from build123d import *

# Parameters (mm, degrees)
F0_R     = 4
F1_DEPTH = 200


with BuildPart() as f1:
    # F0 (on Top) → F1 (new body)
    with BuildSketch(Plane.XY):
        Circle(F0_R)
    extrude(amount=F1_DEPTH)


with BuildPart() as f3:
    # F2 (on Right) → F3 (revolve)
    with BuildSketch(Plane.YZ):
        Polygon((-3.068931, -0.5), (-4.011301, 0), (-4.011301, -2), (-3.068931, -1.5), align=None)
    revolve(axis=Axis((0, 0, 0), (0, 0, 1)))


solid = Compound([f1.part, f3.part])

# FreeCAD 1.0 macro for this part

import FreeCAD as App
import Part
import Sketcher

V = App.Vector


def add_polygon(sketch, points):
    """Adds a closed chain of lines whose ends are joined by coincident constraints."""
    first, n = sketch.GeometryCount, len(points)
    for a, b in zip(points, points[1:] + points[:1]):
        sketch.addGeometry(Part.LineSegment(App.Vector(*a, 0), App.Vector(*b, 0)), False)
    for i in range(n):
        sketch.addConstraint(Sketcher.Constraint("Coincident", first + i, 2, first + (i + 1) % n, 1))

doc = App.newDocument("Part")
body = doc.addObject("PartDesign::Body", "Body")

# Sketch on XY plane
sketch1 = body.newObject("Sketcher::SketchObject", "Sketch")
sketch1.AttachmentSupport = (doc.getObject("XY_Plane"), [""])
sketch1.MapMode = "FlatFace"
sketch1.addGeometry(Part.Circle(V(0, 0, 0), V(0, 0, 1), 4), False)
sketch1.addConstraint(Sketcher.Constraint("Coincident", 0, 3, -1, 1))
sketch1.addConstraint(Sketcher.Constraint("Diameter", 0, 8.0))
pad1 = body.newObject("PartDesign::Pad", "Pad")
pad1.Profile = sketch1
pad1.Length = 200
body2 = doc.addObject("PartDesign::Body", "Body001")

# Sketch on YZ plane
sketch2 = body2.newObject("Sketcher::SketchObject", "Sketch001")
sketch2.AttachmentSupport = (doc.getObject("YZ_Plane001"), [""])
sketch2.MapMode = "FlatFace"
add_polygon(sketch2, [(-3.1, -0.5), (-4, 0), (-4, -2), (-3.1, -1.5)])  # lines 0-3
sketch2.addConstraint(Sketcher.Constraint("Vertical", 1))
sketch2.addConstraint(Sketcher.Constraint("Vertical", 3))
sketch2.addConstraint(Sketcher.Constraint("PointOnObject", 0, 2, -1))
sketch2.addConstraint(Sketcher.Constraint("Equal", 0, 2))
sketch2.addConstraint(Sketcher.Constraint("DistanceY", 1, 2, 1, 1, 2.0))
sketch2.addConstraint(Sketcher.Constraint("DistanceY", 3, 1, 3, 2, 1.0))
sketch2.addConstraint(Sketcher.Constraint("Distance", 0, 1.0668))
sketch2.addConstraint(Sketcher.Constraint("DistanceX", 0, 2, -1, 1, 4.011301))
revolution = body2.newObject("PartDesign::Revolution", "Revolution")
revolution.Profile = sketch2
revolution.ReferenceAxis = (sketch2, ["V_Axis"])
revolution.Angle = 360

doc.recompute()
